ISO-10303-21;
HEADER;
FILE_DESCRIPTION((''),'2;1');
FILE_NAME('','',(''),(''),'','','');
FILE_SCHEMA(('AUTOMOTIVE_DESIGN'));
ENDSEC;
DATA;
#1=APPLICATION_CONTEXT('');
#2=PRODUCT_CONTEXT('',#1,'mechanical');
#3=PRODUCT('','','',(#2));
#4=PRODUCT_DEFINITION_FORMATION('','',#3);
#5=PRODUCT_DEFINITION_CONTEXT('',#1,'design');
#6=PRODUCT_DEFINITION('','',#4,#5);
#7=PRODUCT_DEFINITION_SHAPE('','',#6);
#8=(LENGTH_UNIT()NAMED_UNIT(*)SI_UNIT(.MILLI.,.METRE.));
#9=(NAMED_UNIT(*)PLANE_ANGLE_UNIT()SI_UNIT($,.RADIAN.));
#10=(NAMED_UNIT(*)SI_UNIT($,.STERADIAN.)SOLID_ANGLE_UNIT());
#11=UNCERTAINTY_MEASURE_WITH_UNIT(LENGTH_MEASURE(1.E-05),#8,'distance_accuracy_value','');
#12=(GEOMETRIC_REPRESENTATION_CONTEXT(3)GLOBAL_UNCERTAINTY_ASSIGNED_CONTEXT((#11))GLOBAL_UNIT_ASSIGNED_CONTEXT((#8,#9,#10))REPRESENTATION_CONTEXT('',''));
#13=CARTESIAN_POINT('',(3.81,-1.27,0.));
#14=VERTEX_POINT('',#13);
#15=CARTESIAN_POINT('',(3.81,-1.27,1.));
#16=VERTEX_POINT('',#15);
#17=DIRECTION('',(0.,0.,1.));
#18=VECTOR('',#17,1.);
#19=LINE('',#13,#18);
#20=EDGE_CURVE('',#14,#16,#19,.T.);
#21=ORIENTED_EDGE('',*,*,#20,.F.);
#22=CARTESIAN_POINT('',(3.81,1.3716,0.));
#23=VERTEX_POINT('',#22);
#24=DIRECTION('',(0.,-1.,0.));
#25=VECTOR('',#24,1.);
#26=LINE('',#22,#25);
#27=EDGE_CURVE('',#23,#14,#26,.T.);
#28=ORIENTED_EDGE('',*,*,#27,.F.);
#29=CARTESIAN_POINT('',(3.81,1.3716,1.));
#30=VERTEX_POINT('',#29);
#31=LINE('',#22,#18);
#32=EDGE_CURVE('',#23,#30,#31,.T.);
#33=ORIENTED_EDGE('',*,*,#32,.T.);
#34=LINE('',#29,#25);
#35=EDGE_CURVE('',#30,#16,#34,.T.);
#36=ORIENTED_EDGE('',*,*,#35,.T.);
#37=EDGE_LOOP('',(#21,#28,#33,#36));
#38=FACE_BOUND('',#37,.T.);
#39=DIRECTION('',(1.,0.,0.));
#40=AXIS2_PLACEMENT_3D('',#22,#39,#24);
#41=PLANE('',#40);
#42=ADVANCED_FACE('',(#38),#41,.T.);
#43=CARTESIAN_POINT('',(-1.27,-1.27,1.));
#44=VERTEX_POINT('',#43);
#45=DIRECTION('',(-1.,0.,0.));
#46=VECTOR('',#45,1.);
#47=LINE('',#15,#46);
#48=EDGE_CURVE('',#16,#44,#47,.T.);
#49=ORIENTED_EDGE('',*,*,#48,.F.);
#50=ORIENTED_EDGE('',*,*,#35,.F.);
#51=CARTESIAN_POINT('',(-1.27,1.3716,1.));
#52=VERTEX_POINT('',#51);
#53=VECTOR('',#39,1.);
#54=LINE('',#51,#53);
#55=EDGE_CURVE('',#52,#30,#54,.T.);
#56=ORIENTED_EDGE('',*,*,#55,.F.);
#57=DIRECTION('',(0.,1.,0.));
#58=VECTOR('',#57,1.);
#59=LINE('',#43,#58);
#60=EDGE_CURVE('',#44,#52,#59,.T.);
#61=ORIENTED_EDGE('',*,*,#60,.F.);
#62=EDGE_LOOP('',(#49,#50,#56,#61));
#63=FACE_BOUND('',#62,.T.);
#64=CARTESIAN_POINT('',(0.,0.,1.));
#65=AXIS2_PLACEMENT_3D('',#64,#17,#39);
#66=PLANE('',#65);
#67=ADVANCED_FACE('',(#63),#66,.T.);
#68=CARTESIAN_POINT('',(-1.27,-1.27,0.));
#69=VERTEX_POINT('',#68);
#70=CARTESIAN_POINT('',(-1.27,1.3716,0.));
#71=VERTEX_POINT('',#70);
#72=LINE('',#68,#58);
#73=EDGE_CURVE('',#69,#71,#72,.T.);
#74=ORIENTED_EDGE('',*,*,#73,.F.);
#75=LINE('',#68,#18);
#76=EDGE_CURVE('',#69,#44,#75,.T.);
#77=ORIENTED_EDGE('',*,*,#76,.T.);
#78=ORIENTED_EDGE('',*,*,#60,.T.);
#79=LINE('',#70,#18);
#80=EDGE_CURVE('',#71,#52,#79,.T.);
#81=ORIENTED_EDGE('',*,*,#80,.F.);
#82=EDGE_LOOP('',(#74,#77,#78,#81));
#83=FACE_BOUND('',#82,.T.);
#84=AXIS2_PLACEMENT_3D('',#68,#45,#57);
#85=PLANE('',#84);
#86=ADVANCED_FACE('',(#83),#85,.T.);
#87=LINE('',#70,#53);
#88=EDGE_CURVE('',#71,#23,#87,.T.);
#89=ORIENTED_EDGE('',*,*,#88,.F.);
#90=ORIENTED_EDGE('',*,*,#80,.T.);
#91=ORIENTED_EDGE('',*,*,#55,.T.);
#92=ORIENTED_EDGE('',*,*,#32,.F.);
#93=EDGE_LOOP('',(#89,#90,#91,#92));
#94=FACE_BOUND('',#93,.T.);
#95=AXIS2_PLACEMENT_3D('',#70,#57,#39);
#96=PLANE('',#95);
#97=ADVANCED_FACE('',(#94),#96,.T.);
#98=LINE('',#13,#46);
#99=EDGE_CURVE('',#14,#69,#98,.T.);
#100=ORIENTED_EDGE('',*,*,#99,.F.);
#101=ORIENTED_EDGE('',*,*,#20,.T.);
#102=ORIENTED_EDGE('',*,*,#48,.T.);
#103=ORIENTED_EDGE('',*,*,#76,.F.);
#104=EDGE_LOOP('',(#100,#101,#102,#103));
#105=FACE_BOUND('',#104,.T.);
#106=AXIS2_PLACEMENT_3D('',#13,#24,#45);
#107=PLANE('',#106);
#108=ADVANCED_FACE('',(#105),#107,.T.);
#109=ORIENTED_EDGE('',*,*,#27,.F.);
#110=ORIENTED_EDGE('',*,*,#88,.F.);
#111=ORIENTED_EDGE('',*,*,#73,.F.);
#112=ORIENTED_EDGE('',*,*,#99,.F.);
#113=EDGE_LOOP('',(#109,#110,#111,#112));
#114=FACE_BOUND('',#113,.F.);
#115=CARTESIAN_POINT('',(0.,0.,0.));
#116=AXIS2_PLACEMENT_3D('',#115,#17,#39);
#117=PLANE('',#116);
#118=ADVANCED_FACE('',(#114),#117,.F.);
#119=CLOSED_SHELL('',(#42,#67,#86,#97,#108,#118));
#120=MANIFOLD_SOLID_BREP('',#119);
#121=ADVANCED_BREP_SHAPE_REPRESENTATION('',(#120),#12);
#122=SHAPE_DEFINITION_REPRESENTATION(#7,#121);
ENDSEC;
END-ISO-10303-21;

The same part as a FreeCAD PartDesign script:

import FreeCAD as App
import Part
import Sketcher

V = App.Vector
Q = App.Units.Quantity

doc = App.newDocument("Part")
body = doc.addObject("PartDesign::Body", "Body")

# Sketch on XY plane
sketch1 = body.newObject("Sketcher::SketchObject", "Sketch")
sketch1.AttachmentSupport = (doc.getObject("XY_Plane"), [""])
sketch1.MapMode = "FlatFace"
sketch1.addGeometry(Part.LineSegment(V(3.8, 1.4, 0), V(-1.3, 1.4, 0)), False)
sketch1.addGeometry(Part.LineSegment(V(-1.3, 1.4, 0), V(-1.3, -1.3, 0)), False)
sketch1.addGeometry(Part.LineSegment(V(-1.3, -1.3, 0), V(3.8, -1.3, 0)), False)
sketch1.addGeometry(Part.LineSegment(V(3.8, -1.3, 0), V(3.8, 1.4, 0)), False)
sketch1.addConstraint(Sketcher.Constraint("Coincident", 0, 2, 1, 1))
sketch1.addConstraint(Sketcher.Constraint("Coincident", 1, 2, 2, 1))
sketch1.addConstraint(Sketcher.Constraint("Coincident", 2, 2, 3, 1))
sketch1.addConstraint(Sketcher.Constraint("Coincident", 3, 2, 0, 1))
sketch1.addConstraint(Sketcher.Constraint("Horizontal", 0))
sketch1.addConstraint(Sketcher.Constraint("Vertical", 1))
sketch1.addConstraint(Sketcher.Constraint("Horizontal", 2))
sketch1.addConstraint(Sketcher.Constraint("Vertical", 3))
sketch1.addConstraint(Sketcher.Constraint("DistanceX", 0, 2, 0, 1, Q("0.2 in")))
sketch1.addConstraint(Sketcher.Constraint("DistanceY", 1, 2, 1, 1, Q("0.104 in")))
sketch1.addConstraint(Sketcher.Constraint("DistanceX", 0, 2, -1, 1, Q("0.05 in")))
sketch1.addConstraint(Sketcher.Constraint("DistanceY", 1, 2, -1, 1, Q("0.05 in")))
pad1 = body.newObject("PartDesign::Pad", "Pad")
pad1.Profile = sketch1
pad1.Length = 1

doc.recompute()
